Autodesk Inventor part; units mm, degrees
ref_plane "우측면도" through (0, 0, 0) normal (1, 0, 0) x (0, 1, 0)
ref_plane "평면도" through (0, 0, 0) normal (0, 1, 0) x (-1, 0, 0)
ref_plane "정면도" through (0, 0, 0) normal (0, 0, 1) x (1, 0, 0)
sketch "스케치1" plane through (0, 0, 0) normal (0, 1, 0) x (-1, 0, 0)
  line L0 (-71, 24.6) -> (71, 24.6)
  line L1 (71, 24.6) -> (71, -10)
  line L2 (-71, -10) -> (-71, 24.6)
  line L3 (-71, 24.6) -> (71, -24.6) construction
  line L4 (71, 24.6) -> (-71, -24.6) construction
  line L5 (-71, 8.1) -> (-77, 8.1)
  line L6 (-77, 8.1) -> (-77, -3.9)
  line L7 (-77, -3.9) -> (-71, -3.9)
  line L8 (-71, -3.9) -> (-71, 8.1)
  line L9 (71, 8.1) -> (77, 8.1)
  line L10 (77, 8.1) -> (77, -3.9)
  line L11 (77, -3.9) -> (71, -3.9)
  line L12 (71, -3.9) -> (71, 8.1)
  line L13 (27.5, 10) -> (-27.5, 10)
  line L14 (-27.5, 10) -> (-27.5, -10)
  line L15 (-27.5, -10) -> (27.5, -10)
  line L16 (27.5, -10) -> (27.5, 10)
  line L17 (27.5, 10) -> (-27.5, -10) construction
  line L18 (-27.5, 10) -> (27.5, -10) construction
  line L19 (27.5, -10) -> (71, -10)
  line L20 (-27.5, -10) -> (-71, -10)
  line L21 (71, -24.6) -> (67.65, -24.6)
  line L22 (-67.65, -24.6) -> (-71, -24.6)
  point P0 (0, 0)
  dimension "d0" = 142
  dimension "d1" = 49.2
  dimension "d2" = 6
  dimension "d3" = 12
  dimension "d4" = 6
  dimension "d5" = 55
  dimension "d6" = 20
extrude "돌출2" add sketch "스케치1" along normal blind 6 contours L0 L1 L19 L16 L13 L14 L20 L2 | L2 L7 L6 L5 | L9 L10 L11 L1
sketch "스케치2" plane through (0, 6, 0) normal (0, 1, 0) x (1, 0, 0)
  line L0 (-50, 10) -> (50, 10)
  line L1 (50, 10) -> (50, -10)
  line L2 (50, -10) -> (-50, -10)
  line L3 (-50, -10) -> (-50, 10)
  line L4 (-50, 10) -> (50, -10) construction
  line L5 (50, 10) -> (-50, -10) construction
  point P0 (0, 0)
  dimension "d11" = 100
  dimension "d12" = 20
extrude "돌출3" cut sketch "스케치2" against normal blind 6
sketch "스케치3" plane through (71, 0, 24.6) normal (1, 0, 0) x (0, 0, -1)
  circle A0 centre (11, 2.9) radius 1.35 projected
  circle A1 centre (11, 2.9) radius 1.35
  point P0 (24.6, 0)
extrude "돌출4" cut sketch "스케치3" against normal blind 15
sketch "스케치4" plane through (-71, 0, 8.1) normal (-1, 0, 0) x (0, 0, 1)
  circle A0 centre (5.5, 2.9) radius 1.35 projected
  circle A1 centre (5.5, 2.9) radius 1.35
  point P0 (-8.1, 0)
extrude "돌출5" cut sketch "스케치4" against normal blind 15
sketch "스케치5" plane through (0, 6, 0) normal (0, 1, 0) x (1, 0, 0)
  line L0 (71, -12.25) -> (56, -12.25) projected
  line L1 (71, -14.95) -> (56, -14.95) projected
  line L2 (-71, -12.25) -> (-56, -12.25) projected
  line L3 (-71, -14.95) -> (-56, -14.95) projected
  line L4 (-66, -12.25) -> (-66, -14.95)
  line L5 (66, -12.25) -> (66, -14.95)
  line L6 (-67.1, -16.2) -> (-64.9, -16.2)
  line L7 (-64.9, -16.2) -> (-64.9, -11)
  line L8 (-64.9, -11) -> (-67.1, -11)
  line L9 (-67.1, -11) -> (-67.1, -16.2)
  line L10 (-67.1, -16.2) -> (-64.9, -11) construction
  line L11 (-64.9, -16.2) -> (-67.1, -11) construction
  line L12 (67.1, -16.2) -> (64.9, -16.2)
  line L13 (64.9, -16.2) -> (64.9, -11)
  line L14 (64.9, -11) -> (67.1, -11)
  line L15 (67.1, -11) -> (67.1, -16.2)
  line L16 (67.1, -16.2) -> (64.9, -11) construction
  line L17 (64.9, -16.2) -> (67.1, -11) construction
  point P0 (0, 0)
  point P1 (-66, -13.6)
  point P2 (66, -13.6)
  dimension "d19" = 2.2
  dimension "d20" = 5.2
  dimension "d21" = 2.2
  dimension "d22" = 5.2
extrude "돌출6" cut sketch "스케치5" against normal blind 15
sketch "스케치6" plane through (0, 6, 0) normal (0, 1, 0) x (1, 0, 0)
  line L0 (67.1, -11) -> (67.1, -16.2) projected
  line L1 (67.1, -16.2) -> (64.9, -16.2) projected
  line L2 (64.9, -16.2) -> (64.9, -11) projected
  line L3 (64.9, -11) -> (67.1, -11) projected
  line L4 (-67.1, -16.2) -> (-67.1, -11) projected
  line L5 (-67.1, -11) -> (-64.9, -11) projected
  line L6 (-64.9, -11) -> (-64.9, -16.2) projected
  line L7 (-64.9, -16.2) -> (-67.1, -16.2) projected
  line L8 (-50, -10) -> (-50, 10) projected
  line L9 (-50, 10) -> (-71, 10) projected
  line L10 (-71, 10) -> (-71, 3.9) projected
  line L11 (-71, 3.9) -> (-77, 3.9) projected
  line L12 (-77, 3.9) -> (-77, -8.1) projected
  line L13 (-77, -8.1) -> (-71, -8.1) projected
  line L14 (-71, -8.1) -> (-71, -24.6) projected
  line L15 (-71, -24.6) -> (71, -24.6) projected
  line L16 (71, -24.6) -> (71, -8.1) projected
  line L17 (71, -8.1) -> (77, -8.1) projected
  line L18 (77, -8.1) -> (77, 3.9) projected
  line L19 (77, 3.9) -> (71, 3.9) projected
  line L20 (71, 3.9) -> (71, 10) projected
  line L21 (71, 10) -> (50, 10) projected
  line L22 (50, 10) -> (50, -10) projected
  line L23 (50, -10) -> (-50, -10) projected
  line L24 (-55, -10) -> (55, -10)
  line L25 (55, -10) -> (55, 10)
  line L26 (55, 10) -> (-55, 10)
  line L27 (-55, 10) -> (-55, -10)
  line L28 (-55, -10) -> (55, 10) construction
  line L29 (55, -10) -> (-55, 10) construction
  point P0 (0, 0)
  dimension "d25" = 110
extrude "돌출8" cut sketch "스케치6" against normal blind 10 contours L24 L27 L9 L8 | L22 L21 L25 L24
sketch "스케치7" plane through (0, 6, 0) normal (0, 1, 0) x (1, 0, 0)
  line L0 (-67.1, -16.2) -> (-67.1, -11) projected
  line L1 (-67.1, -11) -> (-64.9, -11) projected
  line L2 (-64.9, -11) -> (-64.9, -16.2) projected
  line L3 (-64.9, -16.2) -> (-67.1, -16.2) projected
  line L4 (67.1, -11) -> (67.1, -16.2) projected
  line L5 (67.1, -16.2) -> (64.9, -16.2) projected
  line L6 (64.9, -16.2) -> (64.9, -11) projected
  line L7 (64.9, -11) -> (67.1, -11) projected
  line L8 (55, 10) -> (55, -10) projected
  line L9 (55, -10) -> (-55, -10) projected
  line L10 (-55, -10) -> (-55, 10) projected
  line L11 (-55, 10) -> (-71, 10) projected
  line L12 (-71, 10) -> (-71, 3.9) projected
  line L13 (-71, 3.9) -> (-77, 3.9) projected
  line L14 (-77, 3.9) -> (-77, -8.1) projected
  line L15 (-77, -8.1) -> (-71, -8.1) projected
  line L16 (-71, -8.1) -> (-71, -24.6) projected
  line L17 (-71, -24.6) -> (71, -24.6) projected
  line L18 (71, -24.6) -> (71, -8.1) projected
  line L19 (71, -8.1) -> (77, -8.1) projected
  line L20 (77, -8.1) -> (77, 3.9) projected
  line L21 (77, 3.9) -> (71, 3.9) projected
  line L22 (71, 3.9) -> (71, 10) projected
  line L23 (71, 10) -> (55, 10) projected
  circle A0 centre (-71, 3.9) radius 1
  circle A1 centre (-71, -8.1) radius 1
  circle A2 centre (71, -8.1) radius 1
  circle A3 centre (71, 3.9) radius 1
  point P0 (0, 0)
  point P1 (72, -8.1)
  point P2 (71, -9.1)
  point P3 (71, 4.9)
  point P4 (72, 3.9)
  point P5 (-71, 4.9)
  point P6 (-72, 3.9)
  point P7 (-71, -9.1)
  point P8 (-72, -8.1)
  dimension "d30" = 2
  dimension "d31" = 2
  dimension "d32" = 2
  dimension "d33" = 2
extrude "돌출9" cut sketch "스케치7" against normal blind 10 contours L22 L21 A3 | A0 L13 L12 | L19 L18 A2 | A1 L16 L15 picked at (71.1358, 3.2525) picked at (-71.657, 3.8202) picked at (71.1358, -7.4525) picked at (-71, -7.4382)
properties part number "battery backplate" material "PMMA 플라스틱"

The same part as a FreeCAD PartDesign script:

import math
import FreeCAD as App
import Part
import Sketcher


def add_polygon(sketch, points):
    """Adds a closed chain of lines whose ends are joined by coincident constraints."""
    first, n = sketch.GeometryCount, len(points)
    for a, b in zip(points, points[1:] + points[:1]):
        sketch.addGeometry(Part.LineSegment(App.Vector(*a, 0), App.Vector(*b, 0)), False)
    for i in range(n):
        sketch.addConstraint(Sketcher.Constraint("Coincident", first + i, 2, first + (i + 1) % n, 1))

doc = App.newDocument("Part")
body = doc.addObject("PartDesign::Body", "Body")

# Sketch on XZ plane
sketch1 = body.newObject("Sketcher::SketchObject", "Sketch")
sketch1.AttachmentSupport = (doc.getObject("XZ_Plane"), [""])
sketch1.MapMode = "FlatFace"
add_polygon(sketch1, [(-71, 25), (71, 25), (71, 8), (77, 8), (77, -4), (71, -4), (71, -10), (28, -10), (28, 10), (-28, 10), (-28, -10), (-71, -10), (-71, -4), (-77, -4), (-77, 8), (-71, 8)])  # lines 0-15
sketch1.addConstraint([
    Sketcher.Constraint("Horizontal", 0),
    Sketcher.Constraint("Vertical", 1),
    Sketcher.Constraint("Horizontal", 2),
    Sketcher.Constraint("Vertical", 3),
    Sketcher.Constraint("Horizontal", 4),
    Sketcher.Constraint("Vertical", 5),
    Sketcher.Constraint("Horizontal", 6),
    Sketcher.Constraint("Vertical", 7),
    Sketcher.Constraint("Horizontal", 8),
    Sketcher.Constraint("Vertical", 9),
    Sketcher.Constraint("Horizontal", 10),
    Sketcher.Constraint("Vertical", 11),
    Sketcher.Constraint("Horizontal", 12),
    Sketcher.Constraint("Vertical", 13),
    Sketcher.Constraint("Horizontal", 14),
    Sketcher.Constraint("Vertical", 15),
    Sketcher.Constraint("Symmetric", 6, 2, 8, 2, -1, 1),
    Sketcher.Constraint("Symmetric", 5, 2, 10, 2, -2),
    Sketcher.Constraint("Symmetric", 3, 2, 12, 2, -2),
    Sketcher.Constraint("Symmetric", 1, 2, 14, 2, -2),
    Sketcher.Constraint("Vertical", 1, 2, 4, 2),
    Sketcher.Constraint("DistanceX", 0, 1, 0, 2, 142.0),
    Sketcher.Constraint("DistanceX", 2, 1, 2, 2, 6.0),
    Sketcher.Constraint("DistanceX", 8, 2, 8, 1, 55.0),
    Sketcher.Constraint("DistanceY", 3, 2, 3, 1, 12.0),
    Sketcher.Constraint("DistanceY", 7, 1, 7, 2, 20.0),
    Sketcher.Constraint("DistanceY", 1, 2, 1, 1, 16.5),
    Sketcher.Constraint("DistanceY", 5, 2, 5, 1, 6.1),
])
pad1 = body.newObject("PartDesign::Pad", "Pad")
pad1.Profile = sketch1
pad1.Length = 6
pad1.Reversed = True

# Sketch on XZ plane
sketch2 = body.newObject("Sketcher::SketchObject", "Sketch001")
sketch2.AttachmentSupport = (doc.getObject("XZ_Plane"), [""])
sketch2.MapMode = "FlatFace"
sketch2.AttachmentOffset = App.Placement(App.Vector(0, 0, -6), App.Rotation())
add_polygon(sketch2, [(50, -10), (-50, -10), (-50, 10), (50, 10)])  # lines 0-3
sketch2.addConstraint([
    Sketcher.Constraint("Horizontal", 0),
    Sketcher.Constraint("Vertical", 1),
    Sketcher.Constraint("Horizontal", 2),
    Sketcher.Constraint("Vertical", 3),
    Sketcher.Constraint("Symmetric", 0, 2, 2, 2, -1, 1),
    Sketcher.Constraint("DistanceX", 0, 2, 0, 1, 100.0),
    Sketcher.Constraint("DistanceY", 1, 1, 1, 2, 20.0),
])
pocket1 = body.newObject("PartDesign::Pocket", "Pocket")
pocket1.Profile = sketch2
pocket1.Length = 6
pocket1.Reversed = True

# Sketch on YZ plane
sketch3 = body.newObject("Sketcher::SketchObject", "Sketch002")
sketch3.AttachmentSupport = (doc.getObject("YZ_Plane"), [""])
sketch3.MapMode = "FlatFace"
sketch3.AttachmentOffset = App.Placement(App.Vector(0, 0, 71), App.Rotation())
sketch3.addGeometry(Part.Circle(App.Vector(2.9, 13.6, 0), App.Vector(0, 0, 1), 1.4), False)
sketch3.addConstraint([
    Sketcher.Constraint("Diameter", 0, 2.7),
    Sketcher.Constraint("DistanceX", -1, 1, 0, 3, 2.9),
    Sketcher.Constraint("DistanceY", -1, 1, 0, 3, 13.6),
])
pocket2 = body.newObject("PartDesign::Pocket", "Pocket001")
pocket2.Profile = sketch3
pocket2.Length = 15

# Sketch on YZ plane
sketch4 = body.newObject("Sketcher::SketchObject", "Sketch003")
sketch4.AttachmentSupport = (doc.getObject("YZ_Plane"), [""])
sketch4.MapMode = "FlatFace"
sketch4.AttachmentOffset = App.Placement(App.Vector(0, 0, -71), App.Rotation())
sketch4.addGeometry(Part.Circle(App.Vector(2.9, 13.6, 0), App.Vector(0, 0, 1), 1.4), False)
sketch4.addConstraint([
    Sketcher.Constraint("Diameter", 0, 2.7),
    Sketcher.Constraint("DistanceX", -1, 1, 0, 3, 2.9),
    Sketcher.Constraint("DistanceY", -1, 1, 0, 3, 13.6),
])
pocket3 = body.newObject("PartDesign::Pocket", "Pocket002")
pocket3.Profile = sketch4
pocket3.Length = 15
pocket3.Reversed = True

# Sketch on XZ plane
sketch5 = body.newObject("Sketcher::SketchObject", "Sketch004")
sketch5.AttachmentSupport = (doc.getObject("XZ_Plane"), [""])
sketch5.MapMode = "FlatFace"
sketch5.AttachmentOffset = App.Placement(App.Vector(0, 0, -6), App.Rotation())
add_polygon(sketch5, [(67.1, 11), (64.9, 11), (64.9, 16.2), (67.1, 16.2)])  # lines 0-3
add_polygon(sketch5, [(-67.1, 11), (-67.1, 16.2), (-64.9, 16.2), (-64.9, 11)])  # lines 4-7
sketch5.addConstraint([
    Sketcher.Constraint("Horizontal", 0),
    Sketcher.Constraint("Vertical", 1),
    Sketcher.Constraint("Horizontal", 2),
    Sketcher.Constraint("Vertical", 3),
    Sketcher.Constraint("Vertical", 4),
    Sketcher.Constraint("Horizontal", 5),
    Sketcher.Constraint("Vertical", 6),
    Sketcher.Constraint("Horizontal", 7),
    Sketcher.Constraint("Symmetric", 2, 2, 4, 2, -2),
    Sketcher.Constraint("Symmetric", 0, 2, 6, 2, -2),
    Sketcher.Constraint("DistanceX", 0, 2, 0, 1, 2.2),
    Sketcher.Constraint("DistanceY", 1, 1, 1, 2, 5.2),
    Sketcher.Constraint("DistanceY", -1, 1, 0, 2, 11.0),
    Sketcher.Constraint("DistanceX", 4, 2, 1, 2, 132.0),
])
pocket4 = body.newObject("PartDesign::Pocket", "Pocket003")
pocket4.Profile = sketch5
pocket4.Length = 15
pocket4.Reversed = True

# Sketch on XZ plane
sketch6 = body.newObject("Sketcher::SketchObject", "Sketch005")
sketch6.AttachmentSupport = (doc.getObject("XZ_Plane"), [""])
sketch6.MapMode = "FlatFace"
sketch6.AttachmentOffset = App.Placement(App.Vector(0, 0, -6), App.Rotation())
add_polygon(sketch6, [(-55, 10), (-50, 10), (-50, -10), (-55, -10)])  # lines 0-3
add_polygon(sketch6, [(50, -10), (50, 10), (55, 10), (55, -10)])  # lines 4-7
sketch6.addConstraint([
    Sketcher.Constraint("Horizontal", 0),
    Sketcher.Constraint("Vertical", 1),
    Sketcher.Constraint("Horizontal", 2),
    Sketcher.Constraint("Vertical", 3),
    Sketcher.Constraint("Vertical", 4),
    Sketcher.Constraint("Horizontal", 5),
    Sketcher.Constraint("Vertical", 6),
    Sketcher.Constraint("Horizontal", 7),
    Sketcher.Constraint("Symmetric", 1, 2, 4, 2, -1, 1),
    Sketcher.Constraint("Symmetric", 3, 2, 6, 2, -1, 1),
    Sketcher.Constraint("Horizontal", 3, 2, 4, 2),
    Sketcher.Constraint("DistanceX", 3, 2, 5, 2, 110.0),
    Sketcher.Constraint("DistanceX", 0, 1, 0, 2, 5.0),
    Sketcher.Constraint("DistanceY", 1, 2, 1, 1, 20.0),
])
pocket5 = body.newObject("PartDesign::Pocket", "Pocket004")
pocket5.Profile = sketch6
pocket5.Length = 10
pocket5.Reversed = True

# Sketch on XZ plane
sketch7 = body.newObject("Sketcher::SketchObject", "Sketch006")
sketch7.AttachmentSupport = (doc.getObject("XZ_Plane"), [""])
sketch7.MapMode = "FlatFace"
sketch7.AttachmentOffset = App.Placement(App.Vector(0, 0, -6), App.Rotation())
sketch7.addGeometry([
    Part.LineSegment(App.Vector(71, -3.9, 0), App.Vector(71, -4.9, 0)),  # 0
    Part.ArcOfCircle(Part.Circle(App.Vector(71, -3.9, 0), App.Vector(0, 0, 1), 1), math.radians(0), math.radians(270)),  # 1
    Part.LineSegment(App.Vector(72, -3.9, 0), App.Vector(71, -3.9, 0)),  # 2
    Part.ArcOfCircle(Part.Circle(App.Vector(-71, -3.9, 0), App.Vector(0, 0, 1), 1), math.radians(-90), math.radians(180)),  # 3
    Part.LineSegment(App.Vector(-71, -4.9, 0), App.Vector(-71, -3.9, 0)),  # 4
    Part.LineSegment(App.Vector(-71, -3.9, 0), App.Vector(-72, -3.9, 0)),  # 5
    Part.LineSegment(App.Vector(71, 8.1, 0), App.Vector(72, 8.1, 0)),  # 6
    Part.ArcOfCircle(Part.Circle(App.Vector(71, 8.1, 0), App.Vector(0, 0, 1), 1), math.radians(90), math.radians(360)),  # 7
    Part.LineSegment(App.Vector(71, 9.1, 0), App.Vector(71, 8.1, 0)),  # 8
    Part.ArcOfCircle(Part.Circle(App.Vector(-71, 8.1, 0), App.Vector(0, 0, 1), 1), math.radians(180), math.radians(450)),  # 9
    Part.LineSegment(App.Vector(-72, 8.1, 0), App.Vector(-71, 8.1, 0)),  # 10
    Part.LineSegment(App.Vector(-71, 8.1, 0), App.Vector(-71, 9.1, 0)),  # 11
], False)
sketch7.addConstraint([
    Sketcher.Constraint("Coincident", 0, 2, 1, 2),
    Sketcher.Constraint("Coincident", 1, 1, 2, 1),
    Sketcher.Constraint("Coincident", 2, 2, 0, 1),
    Sketcher.Constraint("Coincident", 3, 1, 4, 1),
    Sketcher.Constraint("Coincident", 4, 2, 5, 1),
    Sketcher.Constraint("Coincident", 5, 2, 3, 2),
    Sketcher.Constraint("Coincident", 6, 2, 7, 2),
    Sketcher.Constraint("Coincident", 7, 1, 8, 1),
    Sketcher.Constraint("Coincident", 8, 2, 6, 1),
    Sketcher.Constraint("Coincident", 9, 1, 10, 1),
    Sketcher.Constraint("Coincident", 10, 2, 11, 1),
    Sketcher.Constraint("Coincident", 11, 2, 9, 2),
    Sketcher.Constraint("Vertical", 0),
    Sketcher.Constraint("Horizontal", 2),
    Sketcher.Constraint("Vertical", 4),
    Sketcher.Constraint("Horizontal", 5),
    Sketcher.Constraint("Horizontal", 6),
    Sketcher.Constraint("Vertical", 8),
    Sketcher.Constraint("Horizontal", 10),
    Sketcher.Constraint("Vertical", 11),
    Sketcher.Constraint("Coincident", 2, 2, 1, 3),
    Sketcher.Constraint("Coincident", 4, 2, 3, 3),
    Sketcher.Constraint("Coincident", 8, 2, 7, 3),
    Sketcher.Constraint("Coincident", 10, 2, 9, 3),
    Sketcher.Constraint("Equal", 1, 3),
    Sketcher.Constraint("Equal", 3, 7),
    Sketcher.Constraint("Equal", 7, 9),
    Sketcher.Constraint("Symmetric", 1, 3, 3, 3, -2),
    Sketcher.Constraint("Symmetric", 7, 3, 9, 3, -2),
    Sketcher.Constraint("Vertical", 1, 3, 7, 3),
    Sketcher.Constraint("Radius", 1, 1.0),
    Sketcher.Constraint("DistanceX", -1, 1, 1, 3, 71.0),
    Sketcher.Constraint("DistanceY", 1, 3, 7, 3, 12.0),
    Sketcher.Constraint("DistanceY", 1, 3, -1, 1, 3.9),
])
pocket6 = body.newObject("PartDesign::Pocket", "Pocket005")
pocket6.Profile = sketch7
pocket6.Length = 10
pocket6.Reversed = True

doc.recompute()
